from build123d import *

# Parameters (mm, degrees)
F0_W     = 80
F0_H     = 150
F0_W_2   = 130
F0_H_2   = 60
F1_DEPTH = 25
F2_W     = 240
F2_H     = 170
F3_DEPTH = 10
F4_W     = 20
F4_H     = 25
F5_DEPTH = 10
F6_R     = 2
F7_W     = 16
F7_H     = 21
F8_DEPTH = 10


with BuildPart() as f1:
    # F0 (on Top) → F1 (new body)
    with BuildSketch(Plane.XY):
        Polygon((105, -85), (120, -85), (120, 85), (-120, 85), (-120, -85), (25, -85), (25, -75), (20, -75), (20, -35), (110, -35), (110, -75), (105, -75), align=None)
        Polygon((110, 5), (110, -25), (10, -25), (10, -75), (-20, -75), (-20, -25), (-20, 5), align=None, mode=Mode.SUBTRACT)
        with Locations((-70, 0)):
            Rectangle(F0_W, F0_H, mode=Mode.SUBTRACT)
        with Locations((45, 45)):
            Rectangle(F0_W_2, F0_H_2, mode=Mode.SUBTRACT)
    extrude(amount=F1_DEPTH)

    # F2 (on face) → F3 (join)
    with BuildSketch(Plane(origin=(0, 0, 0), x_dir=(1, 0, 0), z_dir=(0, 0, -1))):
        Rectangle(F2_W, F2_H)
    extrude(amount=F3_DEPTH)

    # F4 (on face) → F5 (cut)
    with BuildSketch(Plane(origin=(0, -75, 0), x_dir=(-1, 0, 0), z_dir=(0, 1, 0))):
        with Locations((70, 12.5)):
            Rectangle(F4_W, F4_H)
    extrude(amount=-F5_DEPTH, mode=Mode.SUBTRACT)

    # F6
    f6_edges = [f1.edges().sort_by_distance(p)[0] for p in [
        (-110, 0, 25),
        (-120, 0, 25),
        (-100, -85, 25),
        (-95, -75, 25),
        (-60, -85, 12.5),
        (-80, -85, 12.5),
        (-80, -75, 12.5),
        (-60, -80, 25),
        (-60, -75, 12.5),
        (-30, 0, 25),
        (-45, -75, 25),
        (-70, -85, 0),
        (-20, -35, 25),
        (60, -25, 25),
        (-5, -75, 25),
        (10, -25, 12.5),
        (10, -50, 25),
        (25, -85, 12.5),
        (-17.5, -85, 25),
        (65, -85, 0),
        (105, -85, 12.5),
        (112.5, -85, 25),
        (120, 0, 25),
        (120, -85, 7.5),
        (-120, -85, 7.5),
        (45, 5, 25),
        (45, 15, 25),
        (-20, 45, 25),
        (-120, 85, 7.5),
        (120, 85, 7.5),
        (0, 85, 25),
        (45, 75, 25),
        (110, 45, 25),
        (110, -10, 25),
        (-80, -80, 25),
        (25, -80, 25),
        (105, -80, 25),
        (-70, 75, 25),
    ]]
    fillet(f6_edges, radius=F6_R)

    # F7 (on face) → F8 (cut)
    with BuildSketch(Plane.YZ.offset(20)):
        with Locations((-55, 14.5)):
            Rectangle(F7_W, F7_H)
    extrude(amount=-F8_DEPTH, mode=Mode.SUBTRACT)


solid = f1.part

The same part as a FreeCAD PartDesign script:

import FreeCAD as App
import Part
import Sketcher
from FreeCAD import Vector
Q = App.Units.Quantity


def edges_at(feature, points):
    """Names of the edges that pass closest to the given points."""
    edges = feature.Shape.Edges
    near = lambda p: min(range(len(edges)), key=lambda i: edges[i].distToShape(Part.Vertex(*p))[0])
    return sorted({f"Edge{near(p) + 1}" for p in points})

doc = App.newDocument("Part")
body = doc.addObject("PartDesign::Body", "Body")

# Sketch on XY plane
sketch1 = body.newObject("Sketcher::SketchObject", "Sketch")
sketch1.AttachmentSupport = (doc.getObject("XY_Plane"), [""])
sketch1.MapMode = "FlatFace"
sketch1.addGeometry([
    Part.LineSegment(Vector(105, -85, 0), Vector(120, -85, 0)),  # 0
    Part.LineSegment(Vector(120, -85, 0), Vector(120, 85, 0)),  # 1
    Part.LineSegment(Vector(120, 85, 0), Vector(-120, 85, 0)),  # 2
    Part.LineSegment(Vector(-120, 85, 0), Vector(-120, -85, 0)),  # 3
    Part.LineSegment(Vector(-120, -85, 0), Vector(25, -85, 0)),  # 4
    Part.LineSegment(Vector(25, -85, 0), Vector(25, -75, 0)),  # 5
    Part.LineSegment(Vector(25, -75, 0), Vector(20, -75, 0)),  # 6
    Part.LineSegment(Vector(20, -75, 0), Vector(20, -35, 0)),  # 7
    Part.LineSegment(Vector(20, -35, 0), Vector(110, -35, 0)),  # 8
    Part.LineSegment(Vector(110, -35, 0), Vector(110, -75, 0)),  # 9
    Part.LineSegment(Vector(110, -75, 0), Vector(105, -75, 0)),  # 10
    Part.LineSegment(Vector(105, -75, 0), Vector(105, -85, 0)),  # 11
    Part.LineSegment(Vector(-20, 5, 0), Vector(110, 5, 0)),  # 12
    Part.LineSegment(Vector(110, 5, 0), Vector(110, -25, 0)),  # 13
    Part.LineSegment(Vector(110, -25, 0), Vector(10, -25, 0)),  # 14
    Part.LineSegment(Vector(10, -25, 0), Vector(10, -75, 0)),  # 15
    Part.LineSegment(Vector(10, -75, 0), Vector(-20, -75, 0)),  # 16
    Part.LineSegment(Vector(-20, -75, 0), Vector(-20, 5, 0)),  # 17
    Part.LineSegment(Vector(-30, -75, 0), Vector(-110, -75, 0)),  # 18
    Part.LineSegment(Vector(-110, -75, 0), Vector(-110, 75, 0)),  # 19
    Part.LineSegment(Vector(-110, 75, 0), Vector(-30, 75, 0)),  # 20
    Part.LineSegment(Vector(-30, 75, 0), Vector(-30, -75, 0)),  # 21
    Part.LineSegment(Vector(110, 15, 0), Vector(-20, 15, 0)),  # 22
    Part.LineSegment(Vector(-20, 15, 0), Vector(-20, 75, 0)),  # 23
    Part.LineSegment(Vector(-20, 75, 0), Vector(110, 75, 0)),  # 24
    Part.LineSegment(Vector(110, 75, 0), Vector(110, 15, 0)),  # 25
], False)
sketch1.addConstraint([
    Sketcher.Constraint("Coincident", 0, 2, 1, 1),
    Sketcher.Constraint("Coincident", 1, 2, 2, 1),
    Sketcher.Constraint("Coincident", 2, 2, 3, 1),
    Sketcher.Constraint("Coincident", 3, 2, 4, 1),
    Sketcher.Constraint("Coincident", 4, 2, 5, 1),
    Sketcher.Constraint("Coincident", 5, 2, 6, 1),
    Sketcher.Constraint("Coincident", 6, 2, 7, 1),
    Sketcher.Constraint("Coincident", 7, 2, 8, 1),
    Sketcher.Constraint("Coincident", 8, 2, 9, 1),
    Sketcher.Constraint("Coincident", 9, 2, 10, 1),
    Sketcher.Constraint("Coincident", 10, 2, 11, 1),
    Sketcher.Constraint("Coincident", 11, 2, 0, 1),
    Sketcher.Constraint("Coincident", 12, 2, 13, 1),
    Sketcher.Constraint("Coincident", 13, 2, 14, 1),
    Sketcher.Constraint("Coincident", 14, 2, 15, 1),
    Sketcher.Constraint("Coincident", 15, 2, 16, 1),
    Sketcher.Constraint("Coincident", 16, 2, 17, 1),
    Sketcher.Constraint("Coincident", 17, 2, 12, 1),
    Sketcher.Constraint("Coincident", 18, 2, 19, 1),
    Sketcher.Constraint("Coincident", 19, 2, 20, 1),
    Sketcher.Constraint("Coincident", 20, 2, 21, 1),
    Sketcher.Constraint("Coincident", 21, 2, 18, 1),
    Sketcher.Constraint("Coincident", 22, 2, 23, 1),
    Sketcher.Constraint("Coincident", 23, 2, 24, 1),
    Sketcher.Constraint("Coincident", 24, 2, 25, 1),
    Sketcher.Constraint("Coincident", 25, 2, 22, 1),
    Sketcher.Constraint("Horizontal", 0),
    Sketcher.Constraint("Vertical", 1),
    Sketcher.Constraint("Horizontal", 2),
    Sketcher.Constraint("Vertical", 3),
    Sketcher.Constraint("Horizontal", 4),
    Sketcher.Constraint("Vertical", 5),
    Sketcher.Constraint("Horizontal", 6),
    Sketcher.Constraint("Vertical", 7),
    Sketcher.Constraint("Horizontal", 8),
    Sketcher.Constraint("Vertical", 9),
    Sketcher.Constraint("Horizontal", 10),
    Sketcher.Constraint("Vertical", 11),
    Sketcher.Constraint("Horizontal", 12),
    Sketcher.Constraint("Vertical", 13),
    Sketcher.Constraint("Horizontal", 14),
    Sketcher.Constraint("Vertical", 15),
    Sketcher.Constraint("Horizontal", 16),
    Sketcher.Constraint("Vertical", 17),
    Sketcher.Constraint("Horizontal", 18),
    Sketcher.Constraint("Vertical", 19),
    Sketcher.Constraint("Horizontal", 20),
    Sketcher.Constraint("Vertical", 21),
    Sketcher.Constraint("Horizontal", 22),
    Sketcher.Constraint("Vertical", 23),
    Sketcher.Constraint("Horizontal", 24),
    Sketcher.Constraint("Vertical", 25),
    Sketcher.Constraint("Symmetric", 0, 2, 2, 2, -1, 1),
    Sketcher.Constraint("Symmetric", 9, 2, 19, 2, -1, 1),
    Sketcher.Constraint("Symmetric", 6, 2, 23, 2, -1, 1),
    Sketcher.Constraint("Symmetric", 18, 2, 24, 2, -1, 1),
    Sketcher.Constraint("Symmetric", 6, 2, 16, 2, -2),
    Sketcher.Constraint("Horizontal", 0, 2, 3, 2),
    Sketcher.Constraint("Horizontal", 6, 2, 9, 2),
    Sketcher.Constraint("Vertical", 9, 2, 12, 2),
    Sketcher.Constraint("Equal", 6, 10),
    Sketcher.Constraint("Equal", 16, 13),
    Sketcher.Constraint("Equal", 20, 17),
    Sketcher.Constraint("DistanceX", 0, 1, 0, 2, Q("15 mm")),
    Sketcher.Constraint("DistanceX", 2, 2, 2, 1, Q("240 mm")),
    Sketcher.Constraint("DistanceX", 4, 1, 4, 2, Q("145 mm")),
    Sketcher.Constraint("DistanceX", 6, 2, 6, 1, Q("5 mm")),
    Sketcher.Constraint("DistanceX", 14, 2, 14, 1, Q("100 mm")),
    Sketcher.Constraint("DistanceX", 18, 2, 18, 1, Q("80 mm")),
    Sketcher.Constraint("DistanceY", 1, 1, 1, 2, Q("170 mm")),
    Sketcher.Constraint("DistanceY", 5, 1, 5, 2, Q("10 mm")),
    Sketcher.Constraint("DistanceY", 7, 1, 7, 2, Q("40 mm")),
    Sketcher.Constraint("DistanceY", 23, 1, 23, 2, Q("60 mm")),
])
pad1 = body.newObject("PartDesign::Pad", "Pad")
pad1.Profile = sketch1
pad1.Length = 25

# Sketch on XY plane
sketch2 = body.newObject("Sketcher::SketchObject", "Sketch001")
sketch2.AttachmentSupport = (doc.getObject("XY_Plane"), [""])
sketch2.MapMode = "FlatFace"
sketch2.addGeometry([
    Part.LineSegment(Vector(-120, -85, 0), Vector(-120, 85, 0)),
    Part.LineSegment(Vector(-120, 85, 0), Vector(120, 85, 0)),
    Part.LineSegment(Vector(120, 85, 0), Vector(120, -85, 0)),
    Part.LineSegment(Vector(120, -85, 0), Vector(-120, -85, 0)),
], False)
sketch2.addConstraint([
    Sketcher.Constraint("Coincident", 0, 2, 1, 1),
    Sketcher.Constraint("Coincident", 1, 2, 2, 1),
    Sketcher.Constraint("Coincident", 2, 2, 3, 1),
    Sketcher.Constraint("Coincident", 3, 2, 0, 1),
    Sketcher.Constraint("Vertical", 0),
    Sketcher.Constraint("Horizontal", 1),
    Sketcher.Constraint("Vertical", 2),
    Sketcher.Constraint("Horizontal", 3),
    Sketcher.Constraint("Symmetric", 0, 2, 2, 2, -1, 1),
    Sketcher.Constraint("DistanceX", 1, 1, 1, 2, Q("240 mm")),
    Sketcher.Constraint("DistanceY", 0, 1, 0, 2, Q("170 mm")),
])
pad2 = body.newObject("PartDesign::Pad", "Pad001")
pad2.Profile = sketch2
pad2.Length = 10
pad2.Reversed = True

# Sketch on XZ plane
sketch3 = body.newObject("Sketcher::SketchObject", "Sketch002")
sketch3.AttachmentSupport = (doc.getObject("XZ_Plane"), [""])
sketch3.MapMode = "FlatFace"
sketch3.AttachmentOffset = App.Placement(Vector(0, 0, 75), App.Rotation())
sketch3.addGeometry([
    Part.LineSegment(Vector(-60, 25, 0), Vector(-60, 0, 0)),
    Part.LineSegment(Vector(-60, 0, 0), Vector(-80, 0, 0)),
    Part.LineSegment(Vector(-80, 0, 0), Vector(-80, 25, 0)),
    Part.LineSegment(Vector(-80, 25, 0), Vector(-60, 25, 0)),
], False)
sketch3.addConstraint([
    Sketcher.Constraint("Coincident", 0, 2, 1, 1),
    Sketcher.Constraint("Coincident", 1, 2, 2, 1),
    Sketcher.Constraint("Coincident", 2, 2, 3, 1),
    Sketcher.Constraint("Coincident", 3, 2, 0, 1),
    Sketcher.Constraint("Vertical", 0),
    Sketcher.Constraint("Horizontal", 1),
    Sketcher.Constraint("Vertical", 2),
    Sketcher.Constraint("Horizontal", 3),
    Sketcher.Constraint("PointOnObject", 0, 2, -1),
    Sketcher.Constraint("DistanceX", 1, 2, 1, 1, Q("20 mm")),
    Sketcher.Constraint("DistanceY", 0, 2, 0, 1, Q("25 mm")),
    Sketcher.Constraint("DistanceX", 0, 2, -1, 1, Q("60 mm")),
])
pocket1 = body.newObject("PartDesign::Pocket", "Pocket")
pocket1.Profile = sketch3
pocket1.Length = 10
pocket1.Reversed = True
doc.recompute()

fillet = body.newObject("PartDesign::Fillet", "Fillet")
fillet.Base = (pocket1, edges_at(pocket1, [
    (-110, 0, 25),
    (-120, 0, 25),
    (-100, -85, 25),
    (-95, -75, 25),
    (-60, -85, 12.5),
    (-80, -85, 12.5),
    (-80, -75, 12.5),
    (-60, -80, 25),
    (-60, -75, 12.5),
    (-30, 0, 25),
    (-45, -75, 25),
    (-70, -85, 0),
    (-20, -35, 25),
    (60, -25, 25),
    (-5, -75, 25),
    (10, -25, 12.5),
    (10, -50, 25),
    (25, -85, 12.5),
    (-17.5, -85, 25),
    (65, -85, 0),
    (105, -85, 12.5),
    (112.5, -85, 25),
    (120, 0, 25),
    (120, -85, 7.5),
    (-120, -85, 7.5),
    (45, 5, 25),
    (45, 15, 25),
    (-20, 45, 25),
    (-120, 85, 7.5),
    (120, 85, 7.5),
    (0, 85, 25),
    (45, 75, 25),
    (110, 45, 25),
    (110, -10, 25),
    (-80, -80, 25),
    (25, -80, 25),
    (105, -80, 25),
    (-70, 75, 25),
]))
fillet.Radius = 2

# Sketch on YZ plane
sketch4 = body.newObject("Sketcher::SketchObject", "Sketch003")
sketch4.AttachmentSupport = (doc.getObject("YZ_Plane"), [""])
sketch4.MapMode = "FlatFace"
sketch4.AttachmentOffset = App.Placement(Vector(0, 0, 20), App.Rotation())
sketch4.addGeometry([
    Part.LineSegment(Vector(-63, 25, 0), Vector(-63, 4, 0)),
    Part.LineSegment(Vector(-63, 4, 0), Vector(-47, 4, 0)),
    Part.LineSegment(Vector(-47, 4, 0), Vector(-47, 25, 0)),
    Part.LineSegment(Vector(-47, 25, 0), Vector(-63, 25, 0)),
], False)
sketch4.addConstraint([
    Sketcher.Constraint("Coincident", 0, 2, 1, 1),
    Sketcher.Constraint("Coincident", 1, 2, 2, 1),
    Sketcher.Constraint("Coincident", 2, 2, 3, 1),
    Sketcher.Constraint("Coincident", 3, 2, 0, 1),
    Sketcher.Constraint("Vertical", 0),
    Sketcher.Constraint("Horizontal", 1),
    Sketcher.Constraint("Vertical", 2),
    Sketcher.Constraint("Horizontal", 3),
    Sketcher.Constraint("DistanceX", 1, 1, 1, 2, Q("16 mm")),
    Sketcher.Constraint("DistanceY", 0, 2, 0, 1, Q("21 mm")),
    Sketcher.Constraint("DistanceX", 0, 2, -1, 1, Q("63 mm")),
    Sketcher.Constraint("DistanceY", -1, 1, 0, 2, Q("4 mm")),
])
pocket2 = body.newObject("PartDesign::Pocket", "Pocket001")
pocket2.Profile = sketch4
pocket2.Length = 10

doc.recompute()
